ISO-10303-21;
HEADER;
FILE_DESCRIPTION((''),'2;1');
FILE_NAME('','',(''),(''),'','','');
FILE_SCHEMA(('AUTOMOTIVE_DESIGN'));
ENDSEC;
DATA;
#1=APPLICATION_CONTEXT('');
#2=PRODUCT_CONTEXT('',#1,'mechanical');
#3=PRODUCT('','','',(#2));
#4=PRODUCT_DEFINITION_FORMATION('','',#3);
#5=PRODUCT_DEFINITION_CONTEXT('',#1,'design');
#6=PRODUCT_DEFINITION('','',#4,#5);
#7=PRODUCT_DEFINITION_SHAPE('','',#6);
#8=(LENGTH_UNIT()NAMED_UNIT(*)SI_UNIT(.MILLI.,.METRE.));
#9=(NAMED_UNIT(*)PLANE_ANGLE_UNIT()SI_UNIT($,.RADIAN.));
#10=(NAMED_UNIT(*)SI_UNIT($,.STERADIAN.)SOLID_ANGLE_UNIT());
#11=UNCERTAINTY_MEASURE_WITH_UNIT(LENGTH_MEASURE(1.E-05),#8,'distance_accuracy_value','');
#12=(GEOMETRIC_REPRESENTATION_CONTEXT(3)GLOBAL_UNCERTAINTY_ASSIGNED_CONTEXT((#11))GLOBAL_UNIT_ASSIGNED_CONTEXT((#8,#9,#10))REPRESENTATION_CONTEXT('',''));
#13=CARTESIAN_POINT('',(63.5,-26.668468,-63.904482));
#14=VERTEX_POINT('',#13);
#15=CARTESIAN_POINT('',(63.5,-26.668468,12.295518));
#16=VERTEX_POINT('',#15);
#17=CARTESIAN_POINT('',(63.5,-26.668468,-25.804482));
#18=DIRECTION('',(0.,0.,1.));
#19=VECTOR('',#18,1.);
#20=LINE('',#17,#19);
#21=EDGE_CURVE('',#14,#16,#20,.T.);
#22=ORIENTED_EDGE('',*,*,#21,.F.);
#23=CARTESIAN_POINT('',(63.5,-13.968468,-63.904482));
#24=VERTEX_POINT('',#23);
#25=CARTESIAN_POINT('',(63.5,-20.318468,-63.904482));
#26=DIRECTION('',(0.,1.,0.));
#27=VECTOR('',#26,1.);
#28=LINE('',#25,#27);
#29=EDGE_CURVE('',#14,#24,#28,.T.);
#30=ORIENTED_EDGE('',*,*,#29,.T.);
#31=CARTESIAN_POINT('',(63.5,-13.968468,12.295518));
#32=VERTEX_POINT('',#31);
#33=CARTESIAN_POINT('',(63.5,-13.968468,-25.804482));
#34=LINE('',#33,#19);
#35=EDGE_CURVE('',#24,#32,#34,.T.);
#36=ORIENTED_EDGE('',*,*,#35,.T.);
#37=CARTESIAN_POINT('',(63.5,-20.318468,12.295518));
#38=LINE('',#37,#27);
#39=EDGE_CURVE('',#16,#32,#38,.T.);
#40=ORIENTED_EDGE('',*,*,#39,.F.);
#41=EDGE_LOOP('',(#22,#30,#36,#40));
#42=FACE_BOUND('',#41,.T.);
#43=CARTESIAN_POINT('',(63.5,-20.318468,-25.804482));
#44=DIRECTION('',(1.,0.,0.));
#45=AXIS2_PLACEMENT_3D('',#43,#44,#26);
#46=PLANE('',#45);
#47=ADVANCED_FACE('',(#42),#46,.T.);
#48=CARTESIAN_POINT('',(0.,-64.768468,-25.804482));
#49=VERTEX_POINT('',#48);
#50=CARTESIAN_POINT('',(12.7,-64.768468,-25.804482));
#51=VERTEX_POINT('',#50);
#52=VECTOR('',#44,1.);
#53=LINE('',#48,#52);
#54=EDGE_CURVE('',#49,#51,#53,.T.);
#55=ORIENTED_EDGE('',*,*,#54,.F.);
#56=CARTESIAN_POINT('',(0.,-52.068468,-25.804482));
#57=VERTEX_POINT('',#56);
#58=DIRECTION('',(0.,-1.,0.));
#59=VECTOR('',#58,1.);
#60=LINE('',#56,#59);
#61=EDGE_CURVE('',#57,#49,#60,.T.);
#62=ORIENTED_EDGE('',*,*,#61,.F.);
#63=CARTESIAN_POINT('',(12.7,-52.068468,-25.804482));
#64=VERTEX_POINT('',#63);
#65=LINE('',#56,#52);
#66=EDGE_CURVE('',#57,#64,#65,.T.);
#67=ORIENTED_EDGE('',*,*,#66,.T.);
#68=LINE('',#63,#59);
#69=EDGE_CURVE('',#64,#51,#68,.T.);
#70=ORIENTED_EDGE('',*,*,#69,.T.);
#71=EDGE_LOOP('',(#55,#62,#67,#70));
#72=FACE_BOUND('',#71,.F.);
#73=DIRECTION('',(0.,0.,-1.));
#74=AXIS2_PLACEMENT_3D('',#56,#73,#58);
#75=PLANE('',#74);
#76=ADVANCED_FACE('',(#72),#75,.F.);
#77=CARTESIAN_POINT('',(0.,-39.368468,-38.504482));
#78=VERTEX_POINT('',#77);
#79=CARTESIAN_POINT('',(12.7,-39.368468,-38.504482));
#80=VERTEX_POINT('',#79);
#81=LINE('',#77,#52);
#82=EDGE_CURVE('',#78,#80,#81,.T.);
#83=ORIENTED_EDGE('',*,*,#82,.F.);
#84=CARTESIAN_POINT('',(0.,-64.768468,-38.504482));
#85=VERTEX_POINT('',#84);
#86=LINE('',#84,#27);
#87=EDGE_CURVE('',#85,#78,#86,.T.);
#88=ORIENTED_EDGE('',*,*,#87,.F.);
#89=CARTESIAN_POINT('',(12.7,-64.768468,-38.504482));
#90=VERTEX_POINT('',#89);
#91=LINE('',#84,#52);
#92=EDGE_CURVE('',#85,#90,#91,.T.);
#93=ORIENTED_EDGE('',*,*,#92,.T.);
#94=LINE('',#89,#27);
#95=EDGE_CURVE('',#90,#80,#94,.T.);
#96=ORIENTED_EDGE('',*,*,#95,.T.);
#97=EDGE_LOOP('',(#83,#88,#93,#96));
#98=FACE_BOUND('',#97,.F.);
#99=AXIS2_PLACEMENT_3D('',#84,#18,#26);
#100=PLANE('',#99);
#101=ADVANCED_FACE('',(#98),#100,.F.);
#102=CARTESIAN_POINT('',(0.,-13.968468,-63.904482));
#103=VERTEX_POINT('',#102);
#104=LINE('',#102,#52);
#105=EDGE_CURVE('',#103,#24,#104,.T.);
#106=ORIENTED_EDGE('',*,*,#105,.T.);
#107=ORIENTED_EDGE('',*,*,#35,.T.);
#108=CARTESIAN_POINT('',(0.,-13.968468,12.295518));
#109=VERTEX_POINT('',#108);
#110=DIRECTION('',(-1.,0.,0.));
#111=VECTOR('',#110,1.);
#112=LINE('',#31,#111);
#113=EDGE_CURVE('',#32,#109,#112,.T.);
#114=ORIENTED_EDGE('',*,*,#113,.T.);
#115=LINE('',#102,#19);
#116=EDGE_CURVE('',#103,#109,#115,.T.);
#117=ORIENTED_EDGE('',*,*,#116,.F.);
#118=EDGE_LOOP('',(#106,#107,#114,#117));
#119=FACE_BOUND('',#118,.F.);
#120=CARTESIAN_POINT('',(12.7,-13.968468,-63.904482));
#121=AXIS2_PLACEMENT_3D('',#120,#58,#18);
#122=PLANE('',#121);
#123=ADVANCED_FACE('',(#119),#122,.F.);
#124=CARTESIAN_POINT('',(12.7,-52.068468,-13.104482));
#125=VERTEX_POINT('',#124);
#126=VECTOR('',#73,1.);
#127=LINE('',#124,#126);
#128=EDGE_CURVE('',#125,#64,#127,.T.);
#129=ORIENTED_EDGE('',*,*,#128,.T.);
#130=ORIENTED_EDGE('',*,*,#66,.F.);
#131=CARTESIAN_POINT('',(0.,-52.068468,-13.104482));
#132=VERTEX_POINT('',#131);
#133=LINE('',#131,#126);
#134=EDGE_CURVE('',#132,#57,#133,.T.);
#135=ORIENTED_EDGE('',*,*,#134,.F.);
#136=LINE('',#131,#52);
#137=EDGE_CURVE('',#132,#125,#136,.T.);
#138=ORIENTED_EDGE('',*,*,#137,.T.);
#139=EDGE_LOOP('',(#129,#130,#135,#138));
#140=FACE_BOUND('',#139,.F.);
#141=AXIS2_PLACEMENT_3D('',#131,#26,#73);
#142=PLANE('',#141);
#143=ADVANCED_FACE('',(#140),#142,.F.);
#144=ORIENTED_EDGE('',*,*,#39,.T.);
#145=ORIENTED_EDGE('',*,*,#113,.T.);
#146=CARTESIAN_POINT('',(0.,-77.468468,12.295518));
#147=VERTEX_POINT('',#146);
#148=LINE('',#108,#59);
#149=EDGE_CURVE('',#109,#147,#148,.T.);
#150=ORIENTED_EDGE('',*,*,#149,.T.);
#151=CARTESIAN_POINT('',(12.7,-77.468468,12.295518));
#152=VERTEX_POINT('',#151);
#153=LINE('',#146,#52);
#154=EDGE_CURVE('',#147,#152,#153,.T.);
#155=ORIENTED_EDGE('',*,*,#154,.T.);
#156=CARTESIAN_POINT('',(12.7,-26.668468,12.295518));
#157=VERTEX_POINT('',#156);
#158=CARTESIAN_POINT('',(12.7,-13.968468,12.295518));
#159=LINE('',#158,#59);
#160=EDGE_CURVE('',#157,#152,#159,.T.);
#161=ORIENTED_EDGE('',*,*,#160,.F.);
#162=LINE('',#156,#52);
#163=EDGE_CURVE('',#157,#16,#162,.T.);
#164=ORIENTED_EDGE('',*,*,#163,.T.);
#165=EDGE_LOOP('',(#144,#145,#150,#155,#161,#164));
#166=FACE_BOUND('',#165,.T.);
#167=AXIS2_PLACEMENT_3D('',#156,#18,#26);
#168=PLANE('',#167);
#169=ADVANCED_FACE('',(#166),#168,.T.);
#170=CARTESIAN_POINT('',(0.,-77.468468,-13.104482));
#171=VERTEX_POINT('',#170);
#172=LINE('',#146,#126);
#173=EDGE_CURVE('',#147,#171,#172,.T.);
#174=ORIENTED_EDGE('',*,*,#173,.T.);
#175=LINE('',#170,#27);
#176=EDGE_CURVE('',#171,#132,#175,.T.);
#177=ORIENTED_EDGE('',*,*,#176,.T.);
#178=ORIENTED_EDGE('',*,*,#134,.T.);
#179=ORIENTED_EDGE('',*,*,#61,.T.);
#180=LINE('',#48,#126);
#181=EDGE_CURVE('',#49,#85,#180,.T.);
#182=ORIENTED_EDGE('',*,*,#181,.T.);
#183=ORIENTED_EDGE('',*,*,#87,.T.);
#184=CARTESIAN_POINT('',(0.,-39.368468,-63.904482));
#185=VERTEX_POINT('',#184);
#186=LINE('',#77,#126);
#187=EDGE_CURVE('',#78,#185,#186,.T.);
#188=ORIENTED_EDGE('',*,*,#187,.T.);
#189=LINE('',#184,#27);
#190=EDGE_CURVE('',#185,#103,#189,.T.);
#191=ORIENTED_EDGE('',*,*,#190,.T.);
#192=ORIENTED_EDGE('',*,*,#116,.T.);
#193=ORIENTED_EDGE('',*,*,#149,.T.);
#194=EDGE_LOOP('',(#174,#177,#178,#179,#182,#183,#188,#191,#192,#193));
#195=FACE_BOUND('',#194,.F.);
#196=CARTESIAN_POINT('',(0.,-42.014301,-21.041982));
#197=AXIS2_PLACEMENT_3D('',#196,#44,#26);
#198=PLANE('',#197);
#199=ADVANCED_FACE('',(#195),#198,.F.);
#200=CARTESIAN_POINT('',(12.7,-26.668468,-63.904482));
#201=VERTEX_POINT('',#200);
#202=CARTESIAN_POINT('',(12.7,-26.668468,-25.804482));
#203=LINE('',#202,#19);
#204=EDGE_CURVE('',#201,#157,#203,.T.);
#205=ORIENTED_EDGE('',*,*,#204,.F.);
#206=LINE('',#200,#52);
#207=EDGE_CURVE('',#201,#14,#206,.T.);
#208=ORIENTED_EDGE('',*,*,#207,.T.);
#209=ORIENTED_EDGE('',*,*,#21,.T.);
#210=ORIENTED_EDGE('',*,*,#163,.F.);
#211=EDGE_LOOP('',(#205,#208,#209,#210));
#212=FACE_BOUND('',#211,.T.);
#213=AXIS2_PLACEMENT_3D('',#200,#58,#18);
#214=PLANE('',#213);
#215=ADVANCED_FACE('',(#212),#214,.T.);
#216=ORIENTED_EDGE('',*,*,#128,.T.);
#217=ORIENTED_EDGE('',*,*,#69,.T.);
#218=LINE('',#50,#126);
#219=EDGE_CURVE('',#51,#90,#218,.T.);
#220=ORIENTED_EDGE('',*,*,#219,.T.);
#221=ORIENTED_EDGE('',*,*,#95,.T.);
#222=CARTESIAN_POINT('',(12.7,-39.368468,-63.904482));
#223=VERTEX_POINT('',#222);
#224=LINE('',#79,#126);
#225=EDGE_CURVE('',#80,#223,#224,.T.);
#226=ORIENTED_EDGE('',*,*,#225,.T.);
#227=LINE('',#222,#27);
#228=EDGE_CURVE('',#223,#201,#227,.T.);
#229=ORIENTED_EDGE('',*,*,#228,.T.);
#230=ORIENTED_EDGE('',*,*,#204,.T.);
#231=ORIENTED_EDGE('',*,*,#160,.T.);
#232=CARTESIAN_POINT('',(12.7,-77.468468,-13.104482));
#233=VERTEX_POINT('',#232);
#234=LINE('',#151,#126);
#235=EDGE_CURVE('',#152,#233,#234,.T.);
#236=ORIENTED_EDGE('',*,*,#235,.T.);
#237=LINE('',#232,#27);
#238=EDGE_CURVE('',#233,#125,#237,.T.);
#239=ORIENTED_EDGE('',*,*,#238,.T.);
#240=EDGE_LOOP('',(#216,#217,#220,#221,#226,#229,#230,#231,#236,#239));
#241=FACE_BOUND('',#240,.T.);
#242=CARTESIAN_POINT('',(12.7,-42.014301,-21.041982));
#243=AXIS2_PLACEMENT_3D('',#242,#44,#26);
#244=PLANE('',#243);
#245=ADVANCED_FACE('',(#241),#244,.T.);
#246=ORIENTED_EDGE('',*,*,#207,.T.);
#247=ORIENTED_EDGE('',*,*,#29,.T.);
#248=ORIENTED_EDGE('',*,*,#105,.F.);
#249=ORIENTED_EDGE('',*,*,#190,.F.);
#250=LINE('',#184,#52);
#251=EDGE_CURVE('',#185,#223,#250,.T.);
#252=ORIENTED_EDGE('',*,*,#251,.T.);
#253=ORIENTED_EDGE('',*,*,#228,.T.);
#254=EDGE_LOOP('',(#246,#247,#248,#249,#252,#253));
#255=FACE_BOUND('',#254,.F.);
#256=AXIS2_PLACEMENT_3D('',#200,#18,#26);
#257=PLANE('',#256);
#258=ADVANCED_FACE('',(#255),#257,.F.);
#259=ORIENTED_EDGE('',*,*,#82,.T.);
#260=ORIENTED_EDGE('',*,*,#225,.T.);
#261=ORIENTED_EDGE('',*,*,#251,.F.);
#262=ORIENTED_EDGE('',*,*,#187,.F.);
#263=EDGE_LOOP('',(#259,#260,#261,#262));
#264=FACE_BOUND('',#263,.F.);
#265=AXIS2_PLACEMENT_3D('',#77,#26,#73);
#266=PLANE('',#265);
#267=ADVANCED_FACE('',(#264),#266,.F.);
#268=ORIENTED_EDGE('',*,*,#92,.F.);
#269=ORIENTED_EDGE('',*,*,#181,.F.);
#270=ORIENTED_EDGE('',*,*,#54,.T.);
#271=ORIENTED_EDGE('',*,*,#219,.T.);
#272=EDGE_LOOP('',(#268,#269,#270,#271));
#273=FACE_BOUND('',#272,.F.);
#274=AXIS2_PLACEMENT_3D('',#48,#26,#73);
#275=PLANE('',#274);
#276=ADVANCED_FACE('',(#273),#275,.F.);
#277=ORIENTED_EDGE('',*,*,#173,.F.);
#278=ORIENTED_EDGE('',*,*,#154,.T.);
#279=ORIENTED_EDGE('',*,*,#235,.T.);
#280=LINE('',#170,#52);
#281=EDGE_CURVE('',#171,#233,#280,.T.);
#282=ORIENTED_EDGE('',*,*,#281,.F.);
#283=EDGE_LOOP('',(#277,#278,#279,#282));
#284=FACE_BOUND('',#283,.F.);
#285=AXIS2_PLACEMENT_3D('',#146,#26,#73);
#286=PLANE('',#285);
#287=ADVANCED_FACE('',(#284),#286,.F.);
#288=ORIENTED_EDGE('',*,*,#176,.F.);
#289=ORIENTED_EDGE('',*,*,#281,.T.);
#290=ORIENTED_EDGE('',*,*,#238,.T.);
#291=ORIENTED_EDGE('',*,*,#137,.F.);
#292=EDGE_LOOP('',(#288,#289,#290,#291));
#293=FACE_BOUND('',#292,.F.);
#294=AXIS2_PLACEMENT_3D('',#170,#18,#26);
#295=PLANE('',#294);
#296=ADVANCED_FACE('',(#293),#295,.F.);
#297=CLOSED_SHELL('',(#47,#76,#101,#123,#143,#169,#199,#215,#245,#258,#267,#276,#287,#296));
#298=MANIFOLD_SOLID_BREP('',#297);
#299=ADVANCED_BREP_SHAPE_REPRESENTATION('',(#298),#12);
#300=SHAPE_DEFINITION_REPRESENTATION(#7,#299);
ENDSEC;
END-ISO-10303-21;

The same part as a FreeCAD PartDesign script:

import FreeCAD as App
import Part
import Sketcher
Q = App.Units.Quantity

doc = App.newDocument("Part")
body = doc.addObject("PartDesign::Body", "Body")

sketch1 = body.newObject("Sketcher::SketchObject", "Sketch")
sketch1.AttachmentSupport = (doc.getObject("YZ_Plane"), [""])
sketch1.MapMode = "FlatFace"
sketch1.addGeometry([
    Part.LineSegment(App.Vector(-39, -64, 0), App.Vector(-14, -64, 0)),
    Part.LineSegment(App.Vector(-14, -64, 0), App.Vector(-14, 12, 0)),
    Part.LineSegment(App.Vector(-14, 12, 0), App.Vector(-77, 12, 0)),
    Part.LineSegment(App.Vector(-77, 12, 0), App.Vector(-77, -13, 0)),
    Part.LineSegment(App.Vector(-77, -13, 0), App.Vector(-52, -13, 0)),
    Part.LineSegment(App.Vector(-52, -13, 0), App.Vector(-52, -26, 0)),
    Part.LineSegment(App.Vector(-52, -26, 0), App.Vector(-65, -26, 0)),
    Part.LineSegment(App.Vector(-65, -26, 0), App.Vector(-65, -39, 0)),
    Part.LineSegment(App.Vector(-65, -39, 0), App.Vector(-39, -39, 0)),
    Part.LineSegment(App.Vector(-39, -39, 0), App.Vector(-39, -64, 0)),
], False)
sketch1.addConstraint([
    Sketcher.Constraint("Coincident", 0, 2, 1, 1),
    Sketcher.Constraint("Coincident", 1, 2, 2, 1),
    Sketcher.Constraint("Coincident", 2, 2, 3, 1),
    Sketcher.Constraint("Coincident", 3, 2, 4, 1),
    Sketcher.Constraint("Coincident", 4, 2, 5, 1),
    Sketcher.Constraint("Coincident", 5, 2, 6, 1),
    Sketcher.Constraint("Coincident", 6, 2, 7, 1),
    Sketcher.Constraint("Coincident", 7, 2, 8, 1),
    Sketcher.Constraint("Coincident", 8, 2, 9, 1),
    Sketcher.Constraint("Coincident", 9, 2, 0, 1),
    Sketcher.Constraint("Horizontal", 0),
    Sketcher.Constraint("Vertical", 1),
    Sketcher.Constraint("Horizontal", 2),
    Sketcher.Constraint("Vertical", 3),
    Sketcher.Constraint("Horizontal", 4),
    Sketcher.Constraint("Vertical", 5),
    Sketcher.Constraint("Horizontal", 6),
    Sketcher.Constraint("Vertical", 7),
    Sketcher.Constraint("Horizontal", 8),
    Sketcher.Constraint("Vertical", 9),
    Sketcher.Constraint("Equal", 0, 4),
    Sketcher.Constraint("Equal", 4, 8),
    Sketcher.Constraint("Equal", 8, 3),
    Sketcher.Constraint("Equal", 6, 5),
    Sketcher.Constraint("Equal", 5, 7),
    Sketcher.Constraint("Equal", 3, 9),
    Sketcher.Constraint("DistanceX", 0, 1, 0, 2, Q("1 in")),
    Sketcher.Constraint("DistanceY", 1, 1, 1, 2, Q("3 in")),
    Sketcher.Constraint("DistanceX", 2, 2, -1, 1, 77.468468),
    Sketcher.Constraint("DistanceY", 5, 2, -1, 1, 25.804482),
])
pad1 = body.newObject("PartDesign::Pad", "Pad")
pad1.Profile = sketch1
pad1.Length = Q("0.5 in")

sketch2 = body.newObject("Sketcher::SketchObject", "Sketch001")
sketch2.AttachmentSupport = (doc.getObject("YZ_Plane"), [""])
sketch2.MapMode = "FlatFace"
sketch2.AttachmentOffset = App.Placement(App.Vector(0, 0, 0.5 * 25.4), App.Rotation())
sketch2.addGeometry([
    Part.LineSegment(App.Vector(-27, 12, 0), App.Vector(-27, -64, 0)),
    Part.LineSegment(App.Vector(-27, -64, 0), App.Vector(-14, -64, 0)),
    Part.LineSegment(App.Vector(-14, -64, 0), App.Vector(-14, 12, 0)),
    Part.LineSegment(App.Vector(-14, 12, 0), App.Vector(-27, 12, 0)),
], False)
sketch2.addConstraint([
    Sketcher.Constraint("Coincident", 0, 2, 1, 1),
    Sketcher.Constraint("Coincident", 1, 2, 2, 1),
    Sketcher.Constraint("Coincident", 2, 2, 3, 1),
    Sketcher.Constraint("Coincident", 3, 2, 0, 1),
    Sketcher.Constraint("Vertical", 0),
    Sketcher.Constraint("Horizontal", 1),
    Sketcher.Constraint("Vertical", 2),
    Sketcher.Constraint("Horizontal", 3),
    Sketcher.Constraint("DistanceY", 0, 2, 0, 1, Q("3 in")),
    Sketcher.Constraint("DistanceX", 1, 1, 1, 2, Q("0.5 in")),
    Sketcher.Constraint("DistanceX", 0, 2, -1, 1, 26.668468),
    Sketcher.Constraint("DistanceY", 0, 2, -1, 1, 63.904482),
])
pad2 = body.newObject("PartDesign::Pad", "Pad001")
pad2.Profile = sketch2
pad2.Length = Q("2 in")

doc.recompute()
